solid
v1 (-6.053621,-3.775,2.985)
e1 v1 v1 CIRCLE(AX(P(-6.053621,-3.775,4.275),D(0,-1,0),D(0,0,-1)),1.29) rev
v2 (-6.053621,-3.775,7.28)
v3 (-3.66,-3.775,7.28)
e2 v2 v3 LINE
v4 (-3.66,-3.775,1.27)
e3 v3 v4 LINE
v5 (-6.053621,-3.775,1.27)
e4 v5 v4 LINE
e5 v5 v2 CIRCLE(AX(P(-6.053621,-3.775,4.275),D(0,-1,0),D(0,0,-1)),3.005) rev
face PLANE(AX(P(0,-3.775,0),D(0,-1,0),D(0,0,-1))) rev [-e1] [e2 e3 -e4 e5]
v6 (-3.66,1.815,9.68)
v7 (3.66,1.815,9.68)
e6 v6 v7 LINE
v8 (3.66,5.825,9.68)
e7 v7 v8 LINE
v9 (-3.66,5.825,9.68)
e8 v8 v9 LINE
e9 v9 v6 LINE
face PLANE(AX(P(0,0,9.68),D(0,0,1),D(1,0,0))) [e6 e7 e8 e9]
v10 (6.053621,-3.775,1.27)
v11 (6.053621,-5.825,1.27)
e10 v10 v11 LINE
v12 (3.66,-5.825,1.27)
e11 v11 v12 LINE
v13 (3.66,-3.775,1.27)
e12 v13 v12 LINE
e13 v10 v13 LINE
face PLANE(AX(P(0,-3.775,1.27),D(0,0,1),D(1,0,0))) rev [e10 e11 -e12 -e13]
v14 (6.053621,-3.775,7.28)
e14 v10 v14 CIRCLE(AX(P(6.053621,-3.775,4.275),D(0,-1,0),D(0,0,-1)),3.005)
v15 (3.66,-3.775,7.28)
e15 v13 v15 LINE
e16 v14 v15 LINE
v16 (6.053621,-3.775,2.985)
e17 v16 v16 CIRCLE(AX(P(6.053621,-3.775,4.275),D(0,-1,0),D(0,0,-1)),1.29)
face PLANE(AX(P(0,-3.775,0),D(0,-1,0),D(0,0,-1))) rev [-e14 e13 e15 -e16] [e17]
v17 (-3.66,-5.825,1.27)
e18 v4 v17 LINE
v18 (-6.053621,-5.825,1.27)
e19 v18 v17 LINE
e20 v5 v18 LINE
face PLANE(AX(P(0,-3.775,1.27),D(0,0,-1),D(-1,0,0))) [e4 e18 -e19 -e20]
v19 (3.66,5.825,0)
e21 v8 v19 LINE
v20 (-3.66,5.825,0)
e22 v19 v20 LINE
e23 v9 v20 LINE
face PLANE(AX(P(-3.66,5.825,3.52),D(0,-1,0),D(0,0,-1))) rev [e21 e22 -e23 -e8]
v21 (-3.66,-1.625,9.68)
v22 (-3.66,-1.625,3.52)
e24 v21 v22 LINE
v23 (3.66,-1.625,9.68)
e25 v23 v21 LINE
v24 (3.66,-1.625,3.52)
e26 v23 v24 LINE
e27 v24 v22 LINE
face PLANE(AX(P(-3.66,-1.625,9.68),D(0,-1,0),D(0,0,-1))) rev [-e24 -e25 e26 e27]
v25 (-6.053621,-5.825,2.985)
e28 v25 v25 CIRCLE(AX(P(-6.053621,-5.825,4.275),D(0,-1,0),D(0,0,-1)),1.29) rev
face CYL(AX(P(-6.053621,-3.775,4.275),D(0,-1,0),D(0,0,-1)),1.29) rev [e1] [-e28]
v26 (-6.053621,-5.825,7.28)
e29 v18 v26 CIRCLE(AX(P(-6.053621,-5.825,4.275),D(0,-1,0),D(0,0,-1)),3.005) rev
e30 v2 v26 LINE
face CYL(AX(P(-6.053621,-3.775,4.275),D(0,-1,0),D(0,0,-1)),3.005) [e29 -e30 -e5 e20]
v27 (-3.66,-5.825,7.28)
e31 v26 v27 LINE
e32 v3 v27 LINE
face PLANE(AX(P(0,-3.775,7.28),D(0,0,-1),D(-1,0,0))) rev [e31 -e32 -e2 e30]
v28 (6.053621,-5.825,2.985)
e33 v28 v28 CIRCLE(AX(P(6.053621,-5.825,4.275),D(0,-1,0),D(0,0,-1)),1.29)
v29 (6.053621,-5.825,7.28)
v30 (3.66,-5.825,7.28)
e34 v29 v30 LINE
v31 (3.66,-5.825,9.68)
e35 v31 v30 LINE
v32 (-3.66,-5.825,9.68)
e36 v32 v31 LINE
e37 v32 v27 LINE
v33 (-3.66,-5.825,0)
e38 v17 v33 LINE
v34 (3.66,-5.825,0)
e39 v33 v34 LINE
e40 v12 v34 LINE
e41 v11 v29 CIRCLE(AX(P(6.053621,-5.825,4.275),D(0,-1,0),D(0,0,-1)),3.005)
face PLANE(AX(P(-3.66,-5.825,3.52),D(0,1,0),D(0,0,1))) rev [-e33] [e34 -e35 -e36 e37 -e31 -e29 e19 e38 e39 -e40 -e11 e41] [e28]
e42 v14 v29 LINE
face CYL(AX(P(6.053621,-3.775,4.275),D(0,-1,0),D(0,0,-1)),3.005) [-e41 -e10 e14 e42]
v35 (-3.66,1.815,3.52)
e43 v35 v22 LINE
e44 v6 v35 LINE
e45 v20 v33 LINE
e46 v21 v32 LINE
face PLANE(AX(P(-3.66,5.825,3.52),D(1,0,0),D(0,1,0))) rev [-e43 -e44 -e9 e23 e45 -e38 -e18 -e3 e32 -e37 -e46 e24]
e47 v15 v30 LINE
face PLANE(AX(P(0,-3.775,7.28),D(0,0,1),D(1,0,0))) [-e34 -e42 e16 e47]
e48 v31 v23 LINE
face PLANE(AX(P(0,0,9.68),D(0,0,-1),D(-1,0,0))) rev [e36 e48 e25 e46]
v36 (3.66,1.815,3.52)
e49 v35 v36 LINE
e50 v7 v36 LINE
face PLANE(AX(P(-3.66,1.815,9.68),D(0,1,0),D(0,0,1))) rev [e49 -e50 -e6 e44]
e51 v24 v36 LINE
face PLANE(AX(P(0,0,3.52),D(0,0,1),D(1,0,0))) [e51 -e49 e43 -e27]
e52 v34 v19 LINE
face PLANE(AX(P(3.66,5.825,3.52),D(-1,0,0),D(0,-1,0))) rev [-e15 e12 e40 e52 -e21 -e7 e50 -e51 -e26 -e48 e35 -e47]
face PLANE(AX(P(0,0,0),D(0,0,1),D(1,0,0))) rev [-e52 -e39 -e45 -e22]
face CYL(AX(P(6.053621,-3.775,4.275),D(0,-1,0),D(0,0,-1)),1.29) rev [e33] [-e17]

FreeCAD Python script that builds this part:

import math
import FreeCAD as App
import Part
import Sketcher
from FreeCAD import Vector

doc = App.newDocument("Part")
body = doc.addObject("PartDesign::Body", "Body")

sketch1 = body.newObject("Sketcher::SketchObject", "Sketch")
sketch1.AttachmentSupport = (doc.getObject("XY_Plane"), [""])
sketch1.MapMode = "FlatFace"
sketch1.addGeometry(Part.LineSegment(Vector(-4, 6, 0), Vector(-4, -6, 0)), False)
sketch1.addGeometry(Part.LineSegment(Vector(-4, -6, 0), Vector(4, -6, 0)), False)
sketch1.addGeometry(Part.LineSegment(Vector(4, -6, 0), Vector(4, 6, 0)), False)
sketch1.addGeometry(Part.LineSegment(Vector(4, 6, 0), Vector(-4, 6, 0)), False)
sketch1.addConstraint(Sketcher.Constraint("Coincident", 0, 2, 1, 1))
sketch1.addConstraint(Sketcher.Constraint("Coincident", 1, 2, 2, 1))
sketch1.addConstraint(Sketcher.Constraint("Coincident", 2, 2, 3, 1))
sketch1.addConstraint(Sketcher.Constraint("Coincident", 3, 2, 0, 1))
sketch1.addConstraint(Sketcher.Constraint("Vertical", 0))
sketch1.addConstraint(Sketcher.Constraint("Horizontal", 1))
sketch1.addConstraint(Sketcher.Constraint("Vertical", 2))
sketch1.addConstraint(Sketcher.Constraint("Horizontal", 3))
sketch1.addConstraint(Sketcher.Constraint("Symmetric", 0, 2, 2, 2, -1, 1))
sketch1.addConstraint(Sketcher.Constraint("DistanceX", 1, 1, 1, 2, 7.32))
sketch1.addConstraint(Sketcher.Constraint("DistanceY", 0, 2, 0, 1, 11.65))
pad1 = body.newObject("PartDesign::Pad", "Pad")
pad1.Profile = sketch1
pad1.Length = 3.52

sketch2 = body.newObject("Sketcher::SketchObject", "Sketch001")
sketch2.AttachmentSupport = (doc.getObject("XY_Plane"), [""])
sketch2.MapMode = "FlatFace"
sketch2.AttachmentOffset = App.Placement(Vector(0, 0, 3.52), App.Rotation())
sketch2.addGeometry(Part.LineSegment(Vector(-3.7, -1.6, 0), Vector(-3.7, -5.8, 0)), False)
sketch2.addGeometry(Part.LineSegment(Vector(-3.7, -5.8, 0), Vector(3.7, -5.8, 0)), False)
sketch2.addGeometry(Part.LineSegment(Vector(3.7, -5.8, 0), Vector(3.7, -1.6, 0)), False)
sketch2.addGeometry(Part.LineSegment(Vector(3.7, -1.6, 0), Vector(-3.7, -1.6, 0)), False)
sketch2.addGeometry(Part.LineSegment(Vector(-3.7, 5.8, 0), Vector(-3.7, 1.8, 0)), False)
sketch2.addGeometry(Part.LineSegment(Vector(-3.7, 1.8, 0), Vector(3.7, 1.8, 0)), False)
sketch2.addGeometry(Part.LineSegment(Vector(3.7, 1.8, 0), Vector(3.7, 5.8, 0)), False)
sketch2.addGeometry(Part.LineSegment(Vector(3.7, 5.8, 0), Vector(-3.7, 5.8, 0)), False)
sketch2.addConstraint(Sketcher.Constraint("Coincident", 0, 2, 1, 1))
sketch2.addConstraint(Sketcher.Constraint("Coincident", 1, 2, 2, 1))
sketch2.addConstraint(Sketcher.Constraint("Coincident", 2, 2, 3, 1))
sketch2.addConstraint(Sketcher.Constraint("Coincident", 3, 2, 0, 1))
sketch2.addConstraint(Sketcher.Constraint("Coincident", 4, 2, 5, 1))
sketch2.addConstraint(Sketcher.Constraint("Coincident", 5, 2, 6, 1))
sketch2.addConstraint(Sketcher.Constraint("Coincident", 6, 2, 7, 1))
sketch2.addConstraint(Sketcher.Constraint("Coincident", 7, 2, 4, 1))
sketch2.addConstraint(Sketcher.Constraint("Vertical", 0))
sketch2.addConstraint(Sketcher.Constraint("Horizontal", 1))
sketch2.addConstraint(Sketcher.Constraint("Vertical", 2))
sketch2.addConstraint(Sketcher.Constraint("Horizontal", 3))
sketch2.addConstraint(Sketcher.Constraint("Vertical", 4))
sketch2.addConstraint(Sketcher.Constraint("Horizontal", 5))
sketch2.addConstraint(Sketcher.Constraint("Vertical", 6))
sketch2.addConstraint(Sketcher.Constraint("Horizontal", 7))
sketch2.addConstraint(Sketcher.Constraint("Symmetric", 0, 2, 6, 2, -1, 1))
sketch2.addConstraint(Sketcher.Constraint("Vertical", 3, 2, 4, 2))
sketch2.addConstraint(Sketcher.Constraint("Vertical", 2, 2, 5, 2))
sketch2.addConstraint(Sketcher.Constraint("DistanceY", 0, 2, 0, 1, 4.2))
sketch2.addConstraint(Sketcher.Constraint("DistanceX", 1, 1, 1, 2, 7.32))
sketch2.addConstraint(Sketcher.Constraint("DistanceY", 4, 2, 4, 1, 4.01))
sketch2.addConstraint(Sketcher.Constraint("DistanceY", 3, 2, 4, 2, 3.44))
pad2 = body.newObject("PartDesign::Pad", "Pad001")
pad2.Profile = sketch2
pad2.Length = 6.16

sketch3 = body.newObject("Sketcher::SketchObject", "Sketch002")
sketch3.AttachmentSupport = (doc.getObject("XZ_Plane"), [""])
sketch3.MapMode = "FlatFace"
sketch3.AttachmentOffset = App.Placement(Vector(0, 0, 5.825), App.Rotation())
sketch3.addGeometry(Part.ArcOfCircle(Part.Circle(Vector(6.1, 4.3, 0), Vector(0, 0, 1), 3), math.radians(-90), math.radians(90)), False)
sketch3.addGeometry(Part.LineSegment(Vector(6.1, 7.3, 0), Vector(3.7, 7.3, 0)), False)
sketch3.addGeometry(Part.LineSegment(Vector(3.7, 7.3, 0), Vector(3.7, 1.3, 0)), False)
sketch3.addGeometry(Part.LineSegment(Vector(3.7, 1.3, 0), Vector(6.1, 1.3, 0)), False)
sketch3.addGeometry(Part.Circle(Vector(6.1, 4.3, 0), Vector(0, 0, 1), 1.3), False)
sketch3.addGeometry(Part.ArcOfCircle(Part.Circle(Vector(-6.1, 4.3, 0), Vector(0, 0, 1), 3), math.radians(90), math.radians(270)), False)
sketch3.addGeometry(Part.LineSegment(Vector(-6.1, 1.3, 0), Vector(-3.7, 1.3, 0)), False)
sketch3.addGeometry(Part.LineSegment(Vector(-3.7, 1.3, 0), Vector(-3.7, 7.3, 0)), False)
sketch3.addGeometry(Part.LineSegment(Vector(-3.7, 7.3, 0), Vector(-6.1, 7.3, 0)), False)
sketch3.addGeometry(Part.Circle(Vector(-6.1, 4.3, 0), Vector(0, 0, 1), 1.3), False)
sketch3.addConstraint(Sketcher.Constraint("Tangent", 0, 2, 1, 1))
sketch3.addConstraint(Sketcher.Constraint("Coincident", 1, 2, 2, 1))
sketch3.addConstraint(Sketcher.Constraint("Coincident", 2, 2, 3, 1))
sketch3.addConstraint(Sketcher.Constraint("Tangent", 3, 2, 0, 1))
sketch3.addConstraint(Sketcher.Constraint("Tangent", 5, 2, 6, 1))
sketch3.addConstraint(Sketcher.Constraint("Coincident", 6, 2, 7, 1))
sketch3.addConstraint(Sketcher.Constraint("Coincident", 7, 2, 8, 1))
sketch3.addConstraint(Sketcher.Constraint("Tangent", 8, 2, 5, 1))
sketch3.addConstraint(Sketcher.Constraint("Horizontal", 1))
sketch3.addConstraint(Sketcher.Constraint("Vertical", 2))
sketch3.addConstraint(Sketcher.Constraint("Horizontal", 3))
sketch3.addConstraint(Sketcher.Constraint("Horizontal", 6))
sketch3.addConstraint(Sketcher.Constraint("Vertical", 7))
sketch3.addConstraint(Sketcher.Constraint("Horizontal", 8))
sketch3.addConstraint(Sketcher.Constraint("Coincident", 4, 3, 0, 3))
sketch3.addConstraint(Sketcher.Constraint("Coincident", 9, 3, 5, 3))
sketch3.addConstraint(Sketcher.Constraint("Equal", 0, 5))
sketch3.addConstraint(Sketcher.Constraint("Equal", 4, 9))
sketch3.addConstraint(Sketcher.Constraint("Symmetric", 0, 3, 5, 3, -2))
sketch3.addConstraint(Sketcher.Constraint("Equal", 3, 6))
sketch3.addConstraint(Sketcher.Constraint("Diameter", 4, 2.58))
sketch3.addConstraint(Sketcher.Constraint("Radius", 0, 3.005))
sketch3.addConstraint(Sketcher.Constraint("DistanceY", -1, 1, 0, 2, 7.28))
sketch3.addConstraint(Sketcher.Constraint("DistanceX", -1, 1, 1, 2, 3.66))
sketch3.addConstraint(Sketcher.Constraint("DistanceX", 1, 2, 1, 1, 2.393621))
pad3 = body.newObject("PartDesign::Pad", "Pad002")
pad3.Profile = sketch3
pad3.Length = 2.05
pad3.Reversed = True

doc.recompute()
